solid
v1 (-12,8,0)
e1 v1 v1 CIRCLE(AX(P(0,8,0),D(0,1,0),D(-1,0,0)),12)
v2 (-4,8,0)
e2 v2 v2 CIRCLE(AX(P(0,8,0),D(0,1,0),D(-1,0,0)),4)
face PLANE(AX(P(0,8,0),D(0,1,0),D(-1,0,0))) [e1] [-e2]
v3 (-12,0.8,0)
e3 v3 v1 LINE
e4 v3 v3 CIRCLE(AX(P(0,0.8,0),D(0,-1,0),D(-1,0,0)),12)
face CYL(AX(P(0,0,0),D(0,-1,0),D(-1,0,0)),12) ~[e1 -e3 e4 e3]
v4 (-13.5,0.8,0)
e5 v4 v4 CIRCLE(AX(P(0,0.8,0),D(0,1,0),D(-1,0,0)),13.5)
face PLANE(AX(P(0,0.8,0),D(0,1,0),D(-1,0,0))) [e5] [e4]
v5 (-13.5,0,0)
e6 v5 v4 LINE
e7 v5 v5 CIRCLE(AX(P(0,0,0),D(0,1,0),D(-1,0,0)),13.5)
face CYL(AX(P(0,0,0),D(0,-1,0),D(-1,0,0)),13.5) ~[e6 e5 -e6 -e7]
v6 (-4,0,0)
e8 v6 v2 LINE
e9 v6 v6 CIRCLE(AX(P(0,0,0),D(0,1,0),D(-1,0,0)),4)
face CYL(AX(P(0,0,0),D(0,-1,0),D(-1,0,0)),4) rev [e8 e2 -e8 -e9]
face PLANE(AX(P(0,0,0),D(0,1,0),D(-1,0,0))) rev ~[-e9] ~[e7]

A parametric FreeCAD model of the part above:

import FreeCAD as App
import Part
import Sketcher

V = App.Vector

doc = App.newDocument("Part")
params = doc.addObject("Spreadsheet::Sheet", "Params")
for row, (alias, value) in enumerate([
    ("sketch1_diameter", "24 mm"),
    ("sketch1_diameter2", "8 mm"),
    ("pad1_length", "8 mm"),
    ("sketch2_diameter", "27 mm"),
    ("pad2_length", "0.8 mm"),
    ("sketch3_diameter", "8 mm"),
    ("pocket1_length", "0.8 mm"),
], start=1):
    params.set(f"A{row}", alias)
    params.set(f"B{row}", "=" + value)
    params.setAlias(f"B{row}", alias)

body = doc.addObject("PartDesign::Body", "Body")

# Sketch on XZ plane
sketch1 = body.newObject("Sketcher::SketchObject", "Sketch")
sketch1.AttachmentSupport = (doc.getObject("XZ_Plane"), [""])
sketch1.MapMode = "FlatFace"
sketch1.addGeometry(Part.Circle(V(0, 0, 0), V(0, 0, 1), 12), False)
sketch1.addGeometry(Part.Circle(V(0, 0, 0), V(0, 0, 1), 4), False)
sketch1.addConstraint(Sketcher.Constraint("Coincident", 0, 3, -1, 1))
sketch1.addConstraint(Sketcher.Constraint("Coincident", 1, 3, -1, 1))
sketch1.addConstraint(Sketcher.Constraint("Diameter", 0, 24.0))
sketch1.addConstraint(Sketcher.Constraint("Diameter", 1, 8.0))
sketch1.setExpression("Constraints[2]", "Params.sketch1_diameter")
sketch1.setExpression("Constraints[3]", "Params.sketch1_diameter2")
pad1 = body.newObject("PartDesign::Pad", "Pad")
pad1.Profile = sketch1
pad1.setExpression("Length", "Params.pad1_length")
pad1.Reversed = True

# Sketch on XZ plane
sketch2 = body.newObject("Sketcher::SketchObject", "Sketch001")
sketch2.AttachmentSupport = (doc.getObject("XZ_Plane"), [""])
sketch2.MapMode = "FlatFace"
sketch2.addGeometry(Part.Circle(V(0, 0, 0), V(0, 0, 1), 14), False)
sketch2.addConstraint(Sketcher.Constraint("Coincident", 0, 3, -1, 1))
sketch2.addConstraint(Sketcher.Constraint("Diameter", 0, 27.0))
sketch2.setExpression("Constraints[1]", "Params.sketch2_diameter")
pad2 = body.newObject("PartDesign::Pad", "Pad001")
pad2.Profile = sketch2
pad2.setExpression("Length", "Params.pad2_length")
pad2.Reversed = True

# Sketch on XZ plane
sketch3 = body.newObject("Sketcher::SketchObject", "Sketch002")
sketch3.AttachmentSupport = (doc.getObject("XZ_Plane"), [""])
sketch3.MapMode = "FlatFace"
sketch3.addGeometry(Part.Circle(V(0, 0, 0), V(0, 0, 1), 4), False)
sketch3.addConstraint(Sketcher.Constraint("Coincident", 0, 3, -1, 1))
sketch3.addConstraint(Sketcher.Constraint("Diameter", 0, 8.0))
sketch3.setExpression("Constraints[1]", "Params.sketch3_diameter")
pocket1 = body.newObject("PartDesign::Pocket", "Pocket")
pocket1.Profile = sketch3
pocket1.setExpression("Length", "Params.pocket1_length")

doc.recompute()
